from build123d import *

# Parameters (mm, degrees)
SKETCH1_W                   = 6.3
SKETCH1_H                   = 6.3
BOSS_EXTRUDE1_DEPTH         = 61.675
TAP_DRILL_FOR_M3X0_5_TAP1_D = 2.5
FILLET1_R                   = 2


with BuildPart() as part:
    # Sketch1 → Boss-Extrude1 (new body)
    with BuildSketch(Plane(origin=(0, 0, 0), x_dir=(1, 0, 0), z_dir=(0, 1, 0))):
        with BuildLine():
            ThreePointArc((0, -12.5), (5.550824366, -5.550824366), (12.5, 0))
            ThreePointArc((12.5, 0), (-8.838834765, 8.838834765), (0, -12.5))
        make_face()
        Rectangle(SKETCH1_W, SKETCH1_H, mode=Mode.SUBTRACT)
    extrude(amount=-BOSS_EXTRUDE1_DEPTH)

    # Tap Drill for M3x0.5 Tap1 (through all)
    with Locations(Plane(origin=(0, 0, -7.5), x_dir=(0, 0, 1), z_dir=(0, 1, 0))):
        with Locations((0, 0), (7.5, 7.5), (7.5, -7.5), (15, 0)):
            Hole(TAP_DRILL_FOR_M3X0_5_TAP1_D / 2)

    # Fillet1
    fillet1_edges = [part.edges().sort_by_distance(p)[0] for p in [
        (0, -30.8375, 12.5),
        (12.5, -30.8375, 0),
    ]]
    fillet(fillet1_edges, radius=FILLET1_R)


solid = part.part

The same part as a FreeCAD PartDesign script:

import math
import FreeCAD as App
import Part
import Sketcher


def edges_at(feature, points):
    """Names of the edges that pass closest to the given points."""
    edges = feature.Shape.Edges
    near = lambda p: min(range(len(edges)), key=lambda i: edges[i].distToShape(Part.Vertex(*p))[0])
    return sorted({f"Edge{near(p) + 1}" for p in points})


def add_polygon(sketch, points):
    """Adds a closed chain of lines whose ends are joined by coincident constraints."""
    first, n = sketch.GeometryCount, len(points)
    for a, b in zip(points, points[1:] + points[:1]):
        sketch.addGeometry(Part.LineSegment(App.Vector(*a, 0), App.Vector(*b, 0)), False)
    for i in range(n):
        sketch.addConstraint(Sketcher.Constraint("Coincident", first + i, 2, first + (i + 1) % n, 1))

doc = App.newDocument("Part")
body = doc.addObject("PartDesign::Body", "Body")

# Sketch on XZ plane
sketch1 = body.newObject("Sketcher::SketchObject", "Sketch")
sketch1.AttachmentSupport = (doc.getObject("XZ_Plane"), [""])
sketch1.MapMode = "FlatFace"
sketch1.addGeometry(Part.ArcOfCircle(Part.Circle(App.Vector(34, 34, 0), App.Vector(0, 0, 1), 40), math.radians(-148), math.radians(-122)), False)  # 0
sketch1.addGeometry(Part.ArcOfCircle(Part.Circle(App.Vector(0, 0, 0), App.Vector(0, 0, 1), 12), math.radians(90), math.radians(360)), False)  # 1
add_polygon(sketch1, [(3, 3), (-3, 3), (-3, -3), (3, -3)])  # lines 2-5
sketch1.addConstraint([
    Sketcher.Constraint("Coincident", 0, 1, 1, 1),
    Sketcher.Constraint("Coincident", 1, 2, 0, 2),
    Sketcher.Constraint("Horizontal", 2),
    Sketcher.Constraint("Vertical", 3),
    Sketcher.Constraint("Horizontal", 4),
    Sketcher.Constraint("Vertical", 5),
    Sketcher.Constraint("Coincident", 1, 3, -1, 1),
    Sketcher.Constraint("Symmetric", 2, 2, 4, 2, -1, 1),
    Sketcher.Constraint("PointOnObject", 0, 1, -2),
    Sketcher.Constraint("PointOnObject", 1, 2, -1),
    Sketcher.Constraint("Equal", 4, 3),
    Sketcher.Constraint("Radius", 0, 40.0),
    Sketcher.Constraint("Radius", 1, 12.5),
    Sketcher.Constraint("DistanceX", 2, 2, 2, 1, 6.3),
])
pad1 = body.newObject("PartDesign::Pad", "Pad")
pad1.Profile = sketch1
pad1.Length = 61.675

# Sketch on XZ plane
sketch2 = body.newObject("Sketcher::SketchObject", "Sketch001")
sketch2.AttachmentSupport = (doc.getObject("XZ_Plane"), [""])
sketch2.MapMode = "FlatFace"
sketch2.addGeometry([
    Part.Circle(App.Vector(0, -7.5, 0), App.Vector(0, 0, 1), 1.2),
    Part.Circle(App.Vector(7.5, 0, 0), App.Vector(0, 0, 1), 1.2),
    Part.Circle(App.Vector(-7.5, 0, 0), App.Vector(0, 0, 1), 1.2),
    Part.Circle(App.Vector(0, 7.5, 0), App.Vector(0, 0, 1), 1.2),
], False)
sketch2.addConstraint([
    Sketcher.Constraint("Equal", 0, 1),
    Sketcher.Constraint("Equal", 1, 2),
    Sketcher.Constraint("Equal", 2, 3),
    Sketcher.Constraint("Symmetric", 1, 3, 2, 3, -1, 1),
    Sketcher.Constraint("Symmetric", 0, 3, 3, 3, -1, 1),
    Sketcher.Constraint("PointOnObject", 0, 3, -2),
    Sketcher.Constraint("PointOnObject", 1, 3, -1),
    Sketcher.Constraint("Diameter", 0, 2.5),
    Sketcher.Constraint("DistanceX", 2, 3, 1, 3, 15.0),
    Sketcher.Constraint("DistanceY", 0, 3, 3, 3, 15.0),
])
doc.recompute()
hole = body.newObject("PartDesign::Hole", "Hole")
hole.Profile = sketch2
hole.ThreadType = "None"
hole.Diameter = 2.5
hole.DepthType = "ThroughAll"
hole.Reversed = True
doc.recompute()

fillet = body.newObject("PartDesign::Fillet", "Fillet")
fillet.Base = (hole, edges_at(hole, [(0, -30.837, 12.5), (12.5, -30.837, 0)]))
fillet.Radius = 2

doc.recompute()
